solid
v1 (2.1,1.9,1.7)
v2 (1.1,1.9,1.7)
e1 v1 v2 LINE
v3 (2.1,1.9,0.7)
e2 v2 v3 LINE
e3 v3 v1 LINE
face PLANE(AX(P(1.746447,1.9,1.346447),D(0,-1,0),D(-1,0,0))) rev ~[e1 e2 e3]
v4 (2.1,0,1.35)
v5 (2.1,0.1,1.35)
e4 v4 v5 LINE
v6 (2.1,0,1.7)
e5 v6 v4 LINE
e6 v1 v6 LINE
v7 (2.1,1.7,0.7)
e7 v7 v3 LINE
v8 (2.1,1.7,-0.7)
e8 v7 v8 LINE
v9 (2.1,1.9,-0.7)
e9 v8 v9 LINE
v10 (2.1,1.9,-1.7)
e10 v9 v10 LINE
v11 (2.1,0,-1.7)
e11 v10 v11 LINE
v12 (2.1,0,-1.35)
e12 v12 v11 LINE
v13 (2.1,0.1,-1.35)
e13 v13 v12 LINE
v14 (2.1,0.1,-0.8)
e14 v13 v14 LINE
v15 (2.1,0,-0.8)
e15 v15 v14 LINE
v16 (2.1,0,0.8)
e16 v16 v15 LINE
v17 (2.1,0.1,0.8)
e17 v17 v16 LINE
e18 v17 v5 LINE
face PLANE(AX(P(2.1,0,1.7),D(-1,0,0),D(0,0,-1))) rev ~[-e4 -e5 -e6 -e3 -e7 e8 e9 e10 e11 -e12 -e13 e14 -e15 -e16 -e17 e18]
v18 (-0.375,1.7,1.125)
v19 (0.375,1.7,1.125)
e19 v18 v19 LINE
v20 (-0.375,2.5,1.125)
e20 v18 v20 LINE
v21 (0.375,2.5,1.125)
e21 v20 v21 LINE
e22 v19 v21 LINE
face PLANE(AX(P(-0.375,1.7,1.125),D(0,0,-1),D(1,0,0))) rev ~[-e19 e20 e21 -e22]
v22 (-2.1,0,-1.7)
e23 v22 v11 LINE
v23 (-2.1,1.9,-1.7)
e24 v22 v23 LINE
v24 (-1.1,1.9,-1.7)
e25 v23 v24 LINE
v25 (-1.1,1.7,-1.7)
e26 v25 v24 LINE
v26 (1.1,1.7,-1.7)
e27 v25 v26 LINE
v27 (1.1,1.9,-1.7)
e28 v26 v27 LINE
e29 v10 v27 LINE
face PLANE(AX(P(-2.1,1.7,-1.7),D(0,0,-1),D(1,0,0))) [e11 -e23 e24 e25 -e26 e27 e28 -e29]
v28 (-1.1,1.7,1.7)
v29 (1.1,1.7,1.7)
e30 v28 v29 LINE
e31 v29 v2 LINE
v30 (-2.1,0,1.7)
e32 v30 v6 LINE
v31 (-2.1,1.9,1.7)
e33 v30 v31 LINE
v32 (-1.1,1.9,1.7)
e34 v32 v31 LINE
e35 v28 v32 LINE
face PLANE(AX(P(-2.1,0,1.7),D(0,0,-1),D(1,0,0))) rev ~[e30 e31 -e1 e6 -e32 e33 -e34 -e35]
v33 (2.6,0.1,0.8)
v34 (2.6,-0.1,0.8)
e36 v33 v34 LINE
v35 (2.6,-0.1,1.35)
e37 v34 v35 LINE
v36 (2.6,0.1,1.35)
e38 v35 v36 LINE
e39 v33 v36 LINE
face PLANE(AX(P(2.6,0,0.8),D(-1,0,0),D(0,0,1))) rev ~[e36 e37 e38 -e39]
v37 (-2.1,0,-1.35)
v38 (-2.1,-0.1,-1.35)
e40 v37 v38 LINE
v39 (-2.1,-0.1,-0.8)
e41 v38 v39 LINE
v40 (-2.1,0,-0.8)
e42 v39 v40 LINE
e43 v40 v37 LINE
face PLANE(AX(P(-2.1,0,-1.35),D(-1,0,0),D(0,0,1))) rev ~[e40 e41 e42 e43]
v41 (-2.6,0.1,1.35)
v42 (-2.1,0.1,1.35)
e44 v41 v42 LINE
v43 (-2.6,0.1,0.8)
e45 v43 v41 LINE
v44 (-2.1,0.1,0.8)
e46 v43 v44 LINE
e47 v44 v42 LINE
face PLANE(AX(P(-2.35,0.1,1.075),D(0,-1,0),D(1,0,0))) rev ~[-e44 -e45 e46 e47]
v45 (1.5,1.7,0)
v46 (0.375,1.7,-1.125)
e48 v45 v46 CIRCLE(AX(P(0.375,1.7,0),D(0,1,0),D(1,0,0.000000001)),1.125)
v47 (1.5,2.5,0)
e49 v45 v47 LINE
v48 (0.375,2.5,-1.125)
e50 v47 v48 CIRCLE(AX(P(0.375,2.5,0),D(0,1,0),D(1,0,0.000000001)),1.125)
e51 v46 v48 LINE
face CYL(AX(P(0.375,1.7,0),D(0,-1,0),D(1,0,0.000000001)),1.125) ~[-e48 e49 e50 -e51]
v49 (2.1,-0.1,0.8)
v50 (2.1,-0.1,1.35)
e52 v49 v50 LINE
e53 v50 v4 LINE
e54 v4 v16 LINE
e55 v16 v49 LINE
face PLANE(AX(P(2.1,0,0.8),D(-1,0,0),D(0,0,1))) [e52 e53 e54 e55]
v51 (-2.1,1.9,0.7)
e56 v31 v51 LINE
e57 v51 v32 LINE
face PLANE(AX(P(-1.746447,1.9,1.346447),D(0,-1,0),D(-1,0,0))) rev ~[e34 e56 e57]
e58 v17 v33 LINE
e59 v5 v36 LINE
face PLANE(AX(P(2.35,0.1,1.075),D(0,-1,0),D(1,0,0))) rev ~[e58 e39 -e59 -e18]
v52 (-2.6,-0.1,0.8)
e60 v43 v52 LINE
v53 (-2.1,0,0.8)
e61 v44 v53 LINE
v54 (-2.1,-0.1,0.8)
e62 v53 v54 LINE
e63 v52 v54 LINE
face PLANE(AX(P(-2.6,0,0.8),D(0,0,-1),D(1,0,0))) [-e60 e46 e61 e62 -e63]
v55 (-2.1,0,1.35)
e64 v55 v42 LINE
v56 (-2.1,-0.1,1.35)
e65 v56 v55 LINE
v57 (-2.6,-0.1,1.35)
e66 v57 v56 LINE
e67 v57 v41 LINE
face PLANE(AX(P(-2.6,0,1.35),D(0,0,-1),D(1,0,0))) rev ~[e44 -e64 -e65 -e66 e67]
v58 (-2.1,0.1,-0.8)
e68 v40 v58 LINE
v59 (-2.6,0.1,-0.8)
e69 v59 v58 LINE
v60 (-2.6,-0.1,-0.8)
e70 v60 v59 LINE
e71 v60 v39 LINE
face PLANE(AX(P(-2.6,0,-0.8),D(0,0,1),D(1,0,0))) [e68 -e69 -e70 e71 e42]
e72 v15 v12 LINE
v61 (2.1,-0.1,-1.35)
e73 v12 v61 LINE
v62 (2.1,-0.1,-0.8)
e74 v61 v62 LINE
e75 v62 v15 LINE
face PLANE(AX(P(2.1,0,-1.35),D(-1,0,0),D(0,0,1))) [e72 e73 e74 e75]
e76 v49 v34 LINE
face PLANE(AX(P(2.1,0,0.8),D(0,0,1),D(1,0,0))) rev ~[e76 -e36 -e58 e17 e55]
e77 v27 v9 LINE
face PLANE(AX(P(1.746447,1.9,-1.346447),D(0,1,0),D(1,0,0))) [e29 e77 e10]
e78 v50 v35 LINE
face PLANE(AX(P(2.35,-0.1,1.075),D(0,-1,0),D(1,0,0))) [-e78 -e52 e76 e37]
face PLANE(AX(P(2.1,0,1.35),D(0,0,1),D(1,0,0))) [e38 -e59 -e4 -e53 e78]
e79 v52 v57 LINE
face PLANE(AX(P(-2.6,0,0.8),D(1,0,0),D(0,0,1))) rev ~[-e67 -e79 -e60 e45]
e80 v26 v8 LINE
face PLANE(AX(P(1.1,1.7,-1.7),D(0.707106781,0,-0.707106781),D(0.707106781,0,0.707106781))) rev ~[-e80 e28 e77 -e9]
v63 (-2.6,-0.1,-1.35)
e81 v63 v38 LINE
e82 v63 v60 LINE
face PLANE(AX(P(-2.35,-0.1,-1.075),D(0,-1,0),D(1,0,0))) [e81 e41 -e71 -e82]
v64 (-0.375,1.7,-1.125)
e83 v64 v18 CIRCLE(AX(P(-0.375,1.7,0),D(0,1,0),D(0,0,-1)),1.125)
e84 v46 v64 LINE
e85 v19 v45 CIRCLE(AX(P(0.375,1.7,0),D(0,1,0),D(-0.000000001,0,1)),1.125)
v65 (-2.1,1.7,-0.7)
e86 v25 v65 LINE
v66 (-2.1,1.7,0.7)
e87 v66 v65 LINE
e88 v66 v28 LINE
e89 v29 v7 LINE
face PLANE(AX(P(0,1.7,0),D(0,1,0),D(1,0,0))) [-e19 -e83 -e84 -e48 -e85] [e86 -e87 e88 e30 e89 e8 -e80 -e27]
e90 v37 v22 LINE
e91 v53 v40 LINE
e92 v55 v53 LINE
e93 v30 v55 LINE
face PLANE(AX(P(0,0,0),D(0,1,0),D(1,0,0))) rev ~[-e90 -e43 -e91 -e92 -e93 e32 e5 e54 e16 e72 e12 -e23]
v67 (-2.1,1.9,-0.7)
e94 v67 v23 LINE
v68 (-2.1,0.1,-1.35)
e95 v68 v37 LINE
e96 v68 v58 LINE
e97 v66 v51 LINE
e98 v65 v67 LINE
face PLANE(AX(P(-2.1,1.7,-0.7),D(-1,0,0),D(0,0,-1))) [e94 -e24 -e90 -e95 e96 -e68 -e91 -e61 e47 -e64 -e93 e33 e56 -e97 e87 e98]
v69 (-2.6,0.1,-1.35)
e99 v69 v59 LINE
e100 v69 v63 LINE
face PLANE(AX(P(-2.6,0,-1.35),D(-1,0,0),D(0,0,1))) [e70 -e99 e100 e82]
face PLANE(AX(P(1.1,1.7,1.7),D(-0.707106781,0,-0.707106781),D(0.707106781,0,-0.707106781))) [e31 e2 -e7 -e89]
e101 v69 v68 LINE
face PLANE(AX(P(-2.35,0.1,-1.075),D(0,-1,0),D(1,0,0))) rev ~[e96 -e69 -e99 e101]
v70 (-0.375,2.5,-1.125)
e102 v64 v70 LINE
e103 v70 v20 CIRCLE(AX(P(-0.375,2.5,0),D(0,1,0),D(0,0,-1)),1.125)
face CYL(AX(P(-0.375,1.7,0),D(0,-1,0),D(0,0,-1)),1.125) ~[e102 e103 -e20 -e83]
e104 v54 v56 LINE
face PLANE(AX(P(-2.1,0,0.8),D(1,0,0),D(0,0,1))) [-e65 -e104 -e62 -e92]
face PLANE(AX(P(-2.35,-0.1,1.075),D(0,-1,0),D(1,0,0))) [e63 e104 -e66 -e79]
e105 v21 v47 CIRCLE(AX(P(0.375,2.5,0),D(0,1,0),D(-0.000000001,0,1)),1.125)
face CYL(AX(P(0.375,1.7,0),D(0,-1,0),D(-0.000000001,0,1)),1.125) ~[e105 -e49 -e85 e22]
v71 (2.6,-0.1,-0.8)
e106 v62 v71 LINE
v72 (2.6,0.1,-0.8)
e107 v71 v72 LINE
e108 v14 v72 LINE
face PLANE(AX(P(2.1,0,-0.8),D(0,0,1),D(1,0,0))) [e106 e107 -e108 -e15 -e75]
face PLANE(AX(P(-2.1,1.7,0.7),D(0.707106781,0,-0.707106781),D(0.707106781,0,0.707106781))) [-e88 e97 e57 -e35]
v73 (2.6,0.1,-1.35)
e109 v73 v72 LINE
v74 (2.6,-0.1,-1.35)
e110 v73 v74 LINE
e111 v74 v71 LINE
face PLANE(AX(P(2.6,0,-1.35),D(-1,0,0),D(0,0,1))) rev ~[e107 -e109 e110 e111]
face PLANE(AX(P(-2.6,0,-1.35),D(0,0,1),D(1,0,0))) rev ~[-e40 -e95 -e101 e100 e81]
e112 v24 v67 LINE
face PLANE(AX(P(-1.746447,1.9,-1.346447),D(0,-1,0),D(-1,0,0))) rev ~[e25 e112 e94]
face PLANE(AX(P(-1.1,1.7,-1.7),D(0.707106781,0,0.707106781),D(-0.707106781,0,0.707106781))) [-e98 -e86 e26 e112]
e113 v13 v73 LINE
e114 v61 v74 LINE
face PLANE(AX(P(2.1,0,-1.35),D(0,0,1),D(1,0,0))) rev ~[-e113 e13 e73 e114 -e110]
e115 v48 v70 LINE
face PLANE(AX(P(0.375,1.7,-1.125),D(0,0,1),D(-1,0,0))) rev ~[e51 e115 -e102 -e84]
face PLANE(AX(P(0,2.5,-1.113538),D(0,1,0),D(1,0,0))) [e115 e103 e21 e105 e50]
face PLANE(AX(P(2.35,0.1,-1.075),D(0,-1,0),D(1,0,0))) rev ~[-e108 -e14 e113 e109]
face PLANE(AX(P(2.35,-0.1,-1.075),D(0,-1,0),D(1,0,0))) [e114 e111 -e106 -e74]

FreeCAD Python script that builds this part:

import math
import FreeCAD as App
import Part
import Sketcher


def add_polygon(sketch, points):
    """Adds a closed chain of lines whose ends are joined by coincident constraints."""
    first, n = sketch.GeometryCount, len(points)
    for a, b in zip(points, points[1:] + points[:1]):
        sketch.addGeometry(Part.LineSegment(App.Vector(*a, 0), App.Vector(*b, 0)), False)
    for i in range(n):
        sketch.addConstraint(Sketcher.Constraint("Coincident", first + i, 2, first + (i + 1) % n, 1))

doc = App.newDocument("Part")
params = doc.addObject("Spreadsheet::Sheet", "Params")
for row, (alias, value) in enumerate([
    ("sketch1_width", "4.2 mm"),
    ("sketch1_height", "3.4 mm"),
    ("pad1_length", "1.7 mm"),
    ("sketch2_width", "0.5 mm"),
    ("sketch2_height", "0.55 mm"),
    ("pad2_length", "0.2 mm"),
    ("sketch3_width", "1 mm"),
    ("pad3_length", "0.2 mm"),
    ("sketch4_width", "0.75 mm"),
    ("pad4_length", "0.8 mm"),
], start=1):
    params.set(f"A{row}", alias)
    params.set(f"B{row}", "=" + value)
    params.setAlias(f"B{row}", alias)

body = doc.addObject("PartDesign::Body", "Body")

sketch1 = doc.addObject("Sketcher::SketchObject", "Sketch")
body.addObject(sketch1)
sketch1.AttachmentSupport = (doc.XZ_Plane, [""])
sketch1.MapMode = "FlatFace"
add_polygon(sketch1, [(-2.1, -1.7), (-2.1, 1.7), (2.1, 1.7), (2.1, -1.7)])
sketch1.addConstraint([
    Sketcher.Constraint("Vertical", 0),
    Sketcher.Constraint("Horizontal", 1),
    Sketcher.Constraint("Vertical", 2),
    Sketcher.Constraint("Horizontal", 3),
    Sketcher.Constraint("Symmetric", 0, 2, 2, 2, -1, 1),
    Sketcher.Constraint("DistanceX", 1, 1, 1, 2, 4.2),
    Sketcher.Constraint("DistanceY", 0, 1, 0, 2, 3.4),
])
sketch1.setExpression("Constraints[9]", "Params.sketch1_width")
sketch1.setExpression("Constraints[10]", "Params.sketch1_height")
pad1 = doc.addObject("PartDesign::Pad", "Pad")
body.addObject(pad1)
pad1.Profile = sketch1
pad1.setExpression("Length", "Params.pad1_length")
pad1.Reversed = True

sketch2 = doc.addObject("Sketcher::SketchObject", "Sketch001")
body.addObject(sketch2)
sketch2.AttachmentSupport = (doc.XZ_Plane, [""])
sketch2.MapMode = "FlatFace"
add_polygon(sketch2, [(2.1, 1.4), (2.1, 0.8), (2.6, 0.8), (2.6, 1.4)])
add_polygon(sketch2, [(2.1, -0.8), (2.1, -1.4), (2.6, -1.4), (2.6, -0.8)])
add_polygon(sketch2, [(-2.6, -0.8), (-2.6, -1.4), (-2.1, -1.4), (-2.1, -0.8)])
add_polygon(sketch2, [(-2.6, 1.4), (-2.6, 0.8), (-2.1, 0.8), (-2.1, 1.4)])
sketch2.addConstraint([
    Sketcher.Constraint("Vertical", 0),
    Sketcher.Constraint("Horizontal", 1),
    Sketcher.Constraint("Vertical", 2),
    Sketcher.Constraint("Horizontal", 3),
    Sketcher.Constraint("Vertical", 4),
    Sketcher.Constraint("Horizontal", 5),
    Sketcher.Constraint("Vertical", 6),
    Sketcher.Constraint("Horizontal", 7),
    Sketcher.Constraint("Vertical", 8),
    Sketcher.Constraint("Horizontal", 9),
    Sketcher.Constraint("Vertical", 10),
    Sketcher.Constraint("Horizontal", 11),
    Sketcher.Constraint("Vertical", 12),
    Sketcher.Constraint("Horizontal", 13),
    Sketcher.Constraint("Vertical", 14),
    Sketcher.Constraint("Horizontal", 15),
    Sketcher.Constraint("Symmetric", 2, 2, 8, 2, -1, 1),
    Sketcher.Constraint("Symmetric", 0, 2, 10, 2, -1, 1),
    Sketcher.Constraint("Symmetric", 6, 2, 12, 2, -1, 1),
    Sketcher.Constraint("Symmetric", 4, 2, 14, 2, -1, 1),
    Sketcher.Constraint("Symmetric", 5, 2, 8, 2, -2),
    Sketcher.Constraint("Symmetric", 7, 2, 10, 2, -2),
    Sketcher.Constraint("DistanceX", 1, 1, 1, 2, 0.5),
    Sketcher.Constraint("DistanceY", 0, 2, 0, 1, 0.55),
    Sketcher.Constraint("DistanceX", -1, 1, 0, 2, 2.1),
    Sketcher.Constraint("DistanceY", -1, 1, 0, 2, 0.8),
])
sketch2.setExpression("Constraints[38]", "Params.sketch2_width")
sketch2.setExpression("Constraints[39]", "Params.sketch2_height")
pad2 = doc.addObject("PartDesign::Pad", "Pad001")
body.addObject(pad2)
pad2.Profile = sketch2
pad2.setExpression("Length", "Params.pad2_length")
pad2.Midplane = True

sketch3 = doc.addObject("Sketcher::SketchObject", "Sketch002")
body.addObject(sketch3)
sketch3.AttachmentSupport = (doc.XZ_Plane, [""])
sketch3.MapMode = "FlatFace"
sketch3.AttachmentOffset = App.Placement(App.Vector(0, 0, -1.7), App.Rotation())
add_polygon(sketch3, [(-1.1, -1.7), (-2.1, -1.7), (-2.1, -0.7)])
add_polygon(sketch3, [(1.1, -1.7), (2.1, -0.7), (2.1, -1.7)])
add_polygon(sketch3, [(-1.1, 1.7), (-2.1, 0.7), (-2.1, 1.7)])
add_polygon(sketch3, [(2.1, 0.7), (1.1, 1.7), (2.1, 1.7)])
sketch3.addConstraint([
    Sketcher.Constraint("Horizontal", 0),
    Sketcher.Constraint("Vertical", 1),
    Sketcher.Constraint("Vertical", 4),
    Sketcher.Constraint("Horizontal", 5),
    Sketcher.Constraint("Vertical", 7),
    Sketcher.Constraint("Horizontal", 8),
    Sketcher.Constraint("Horizontal", 10),
    Sketcher.Constraint("Vertical", 11),
    Sketcher.Constraint("Symmetric", 3, 2, 6, 2, -1, 1),
    Sketcher.Constraint("Symmetric", 5, 2, 8, 2, -1, 1),
    Sketcher.Constraint("Symmetric", 2, 2, 9, 2, -1, 1),
    Sketcher.Constraint("Symmetric", 1, 2, 11, 2, -1, 1),
    Sketcher.Constraint("Symmetric", 1, 2, 3, 2, -2),
    Sketcher.Constraint("Symmetric", 2, 2, 5, 2, -2),
    Sketcher.Constraint("Perpendicular", 2, 3),
    Sketcher.Constraint("DistanceX", 0, 2, 0, 1, 1.0),
    Sketcher.Constraint("DistanceX", 0, 2, -1, 1, 2.1),
    Sketcher.Constraint("DistanceY", 0, 2, -1, 1, 1.7),
])
sketch3.setExpression("Constraints[27]", "Params.sketch3_width")
pad3 = doc.addObject("PartDesign::Pad", "Pad002")
body.addObject(pad3)
pad3.Profile = sketch3
pad3.setExpression("Length", "Params.pad3_length")
pad3.Reversed = True

sketch4 = doc.addObject("Sketcher::SketchObject", "Sketch003")
body.addObject(sketch4)
sketch4.AttachmentSupport = (doc.XZ_Plane, [""])
sketch4.MapMode = "FlatFace"
sketch4.AttachmentOffset = App.Placement(App.Vector(0, 0, -1.7), App.Rotation())
sketch4.addGeometry([
    Part.ArcOfCircle(Part.Circle(App.Vector(0.4, 0, 0), App.Vector(0, 0, 1), 1.1), math.radians(-90), math.radians(0)),
    Part.LineSegment(App.Vector(0.4, -1.1, 0), App.Vector(-0.4, -1.1, 0)),
    Part.ArcOfCircle(Part.Circle(App.Vector(-0.4, 0, 0), App.Vector(0, 0, 1), 1.1), math.radians(90), math.radians(270)),
    Part.LineSegment(App.Vector(-0.4, 1.1, 0), App.Vector(0.4, 1.1, 0)),
    Part.ArcOfCircle(Part.Circle(App.Vector(0.4, 0, 0), App.Vector(0, 0, 1), 1.1), math.radians(0), math.radians(90)),
], False)
sketch4.addConstraint([
    Sketcher.Constraint("Tangent", 0, 1, 1, 1),
    Sketcher.Constraint("Tangent", 1, 2, 2, 2),
    Sketcher.Constraint("Tangent", 2, 1, 3, 1),
    Sketcher.Constraint("Tangent", 3, 2, 4, 2),
    Sketcher.Constraint("Tangent", 4, 1, 0, 2),
    Sketcher.Constraint("Horizontal", 1),
    Sketcher.Constraint("Horizontal", 3),
    Sketcher.Constraint("Equal", 0, 2),
    Sketcher.Constraint("Symmetric", 0, 3, 2, 3, -1, 1),
    Sketcher.Constraint("PointOnObject", 4, 1, -1),
    Sketcher.Constraint("Radius", 0, 1.125),
    Sketcher.Constraint("DistanceX", 1, 2, 1, 1, 0.75),
])
sketch4.setExpression("Constraints[11]", "Params.sketch4_width")
pad4 = doc.addObject("PartDesign::Pad", "Pad003")
body.addObject(pad4)
pad4.Profile = sketch4
pad4.setExpression("Length", "Params.pad4_length")
pad4.Reversed = True

doc.recompute()
